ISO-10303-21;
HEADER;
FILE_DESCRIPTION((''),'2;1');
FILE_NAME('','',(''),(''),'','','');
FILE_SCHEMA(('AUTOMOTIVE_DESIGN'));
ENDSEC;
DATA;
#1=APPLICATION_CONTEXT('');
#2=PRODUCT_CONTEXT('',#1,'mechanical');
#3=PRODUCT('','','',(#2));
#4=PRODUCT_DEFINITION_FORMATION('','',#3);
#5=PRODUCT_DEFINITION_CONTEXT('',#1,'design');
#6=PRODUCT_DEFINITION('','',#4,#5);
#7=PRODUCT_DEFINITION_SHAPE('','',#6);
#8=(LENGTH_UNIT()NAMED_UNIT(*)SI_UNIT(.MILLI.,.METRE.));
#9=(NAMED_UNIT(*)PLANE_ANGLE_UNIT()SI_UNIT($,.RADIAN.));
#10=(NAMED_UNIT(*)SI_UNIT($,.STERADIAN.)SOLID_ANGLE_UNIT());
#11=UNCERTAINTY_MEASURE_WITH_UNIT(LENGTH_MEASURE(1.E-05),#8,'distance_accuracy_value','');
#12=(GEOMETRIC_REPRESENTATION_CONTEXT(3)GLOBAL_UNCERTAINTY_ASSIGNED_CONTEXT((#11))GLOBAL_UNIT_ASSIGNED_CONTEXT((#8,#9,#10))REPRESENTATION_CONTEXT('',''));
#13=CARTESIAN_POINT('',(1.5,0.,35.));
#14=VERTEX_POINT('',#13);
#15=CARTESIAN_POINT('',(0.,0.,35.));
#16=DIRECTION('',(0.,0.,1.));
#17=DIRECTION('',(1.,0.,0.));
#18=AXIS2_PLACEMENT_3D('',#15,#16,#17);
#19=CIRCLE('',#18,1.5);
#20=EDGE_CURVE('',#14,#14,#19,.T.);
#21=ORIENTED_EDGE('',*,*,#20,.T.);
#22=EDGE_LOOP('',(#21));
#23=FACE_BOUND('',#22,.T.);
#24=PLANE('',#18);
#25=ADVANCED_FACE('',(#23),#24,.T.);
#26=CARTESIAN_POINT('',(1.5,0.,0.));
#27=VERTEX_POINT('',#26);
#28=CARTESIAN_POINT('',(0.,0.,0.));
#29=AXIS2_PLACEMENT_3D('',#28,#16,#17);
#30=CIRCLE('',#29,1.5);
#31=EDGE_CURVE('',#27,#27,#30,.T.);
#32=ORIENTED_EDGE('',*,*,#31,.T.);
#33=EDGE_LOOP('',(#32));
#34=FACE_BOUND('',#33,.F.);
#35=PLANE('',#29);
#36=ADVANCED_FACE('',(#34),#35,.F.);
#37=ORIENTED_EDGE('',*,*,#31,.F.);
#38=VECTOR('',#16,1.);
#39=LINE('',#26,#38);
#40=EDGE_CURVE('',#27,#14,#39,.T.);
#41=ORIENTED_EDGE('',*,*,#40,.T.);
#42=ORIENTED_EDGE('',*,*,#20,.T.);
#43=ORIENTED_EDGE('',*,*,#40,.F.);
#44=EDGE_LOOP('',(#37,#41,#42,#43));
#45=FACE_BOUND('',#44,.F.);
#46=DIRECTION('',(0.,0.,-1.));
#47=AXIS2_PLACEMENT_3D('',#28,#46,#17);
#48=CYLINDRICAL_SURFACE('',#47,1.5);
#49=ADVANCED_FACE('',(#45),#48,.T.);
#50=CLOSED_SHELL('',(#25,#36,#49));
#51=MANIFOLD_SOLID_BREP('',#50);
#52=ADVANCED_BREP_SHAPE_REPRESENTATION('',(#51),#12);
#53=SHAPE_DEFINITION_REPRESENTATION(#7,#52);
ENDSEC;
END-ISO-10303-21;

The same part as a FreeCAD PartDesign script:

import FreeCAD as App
import Part
import Sketcher
Q = App.Units.Quantity

doc = App.newDocument("Part")
body = doc.addObject("PartDesign::Body", "Body")

# Sketch on XY plane
sketch1 = body.newObject("Sketcher::SketchObject", "Sketch")
sketch1.AttachmentSupport = (doc.getObject("XY_Plane"), [""])
sketch1.MapMode = "FlatFace"
sketch1.addGeometry(Part.Circle(App.Vector(0, 0, 0), App.Vector(0, 0, 1), 1.5), False)
sketch1.addConstraint(Sketcher.Constraint("Coincident", 0, 3, -1, 1))
sketch1.addConstraint(Sketcher.Constraint("Diameter", 0, Q("3 mm")))
pad1 = body.newObject("PartDesign::Pad", "Pad")
pad1.Profile = sketch1
pad1.Length = 35

doc.recompute()
